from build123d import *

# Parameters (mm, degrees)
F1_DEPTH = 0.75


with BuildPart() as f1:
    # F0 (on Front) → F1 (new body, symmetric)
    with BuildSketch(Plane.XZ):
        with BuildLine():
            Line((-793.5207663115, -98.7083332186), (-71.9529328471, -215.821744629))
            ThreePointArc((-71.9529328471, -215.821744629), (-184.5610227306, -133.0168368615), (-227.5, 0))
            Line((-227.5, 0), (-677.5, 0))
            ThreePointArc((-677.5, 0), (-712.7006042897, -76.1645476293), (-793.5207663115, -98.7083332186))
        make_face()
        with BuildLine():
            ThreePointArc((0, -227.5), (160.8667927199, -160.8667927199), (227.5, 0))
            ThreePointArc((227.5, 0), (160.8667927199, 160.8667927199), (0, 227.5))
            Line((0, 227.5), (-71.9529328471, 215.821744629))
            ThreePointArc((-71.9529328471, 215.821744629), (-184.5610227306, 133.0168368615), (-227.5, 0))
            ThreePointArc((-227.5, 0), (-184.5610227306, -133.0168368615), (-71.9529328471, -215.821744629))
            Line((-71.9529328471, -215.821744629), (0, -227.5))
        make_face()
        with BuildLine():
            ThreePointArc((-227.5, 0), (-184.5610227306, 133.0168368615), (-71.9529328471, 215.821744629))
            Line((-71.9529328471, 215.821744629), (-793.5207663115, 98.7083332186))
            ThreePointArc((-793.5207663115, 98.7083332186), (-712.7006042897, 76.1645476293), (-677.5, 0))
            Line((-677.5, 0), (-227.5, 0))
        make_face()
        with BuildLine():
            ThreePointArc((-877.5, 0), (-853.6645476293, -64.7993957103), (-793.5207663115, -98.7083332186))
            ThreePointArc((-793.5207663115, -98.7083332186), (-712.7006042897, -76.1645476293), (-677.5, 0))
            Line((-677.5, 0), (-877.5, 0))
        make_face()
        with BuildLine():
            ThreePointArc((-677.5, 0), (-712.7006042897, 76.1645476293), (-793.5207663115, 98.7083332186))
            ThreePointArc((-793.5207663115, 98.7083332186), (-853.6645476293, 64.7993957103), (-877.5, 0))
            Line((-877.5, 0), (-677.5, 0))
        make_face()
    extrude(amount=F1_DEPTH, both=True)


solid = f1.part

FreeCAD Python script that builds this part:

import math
import FreeCAD as App
import Part
import Sketcher

V = App.Vector

doc = App.newDocument("Part")
body = doc.addObject("PartDesign::Body", "Body")

# Sketch on XZ plane
sketch1 = body.newObject("Sketcher::SketchObject", "Sketch")
sketch1.AttachmentSupport = (doc.getObject("XZ_Plane"), [""])
sketch1.MapMode = "FlatFace"
sketch1.addGeometry([
    Part.LineSegment(V(-794, -99, 0), V(0, -228, 0)),  # 0
    Part.ArcOfCircle(Part.Circle(V(0, 0, 0), V(0, 0, 1), 228), math.radians(-90), math.radians(0)),  # 1
    Part.ArcOfCircle(Part.Circle(V(0, 0, 0), V(0, 0, 1), 228), math.radians(0), math.radians(90)),  # 2
    Part.LineSegment(V(0, 228, 0), V(-794, 99, 0)),  # 3
    Part.ArcOfCircle(Part.Circle(V(-778, 0, 0), V(0, 0, 1), 100), math.radians(99), math.radians(180)),  # 4
    Part.ArcOfCircle(Part.Circle(V(-778, 0, 0), V(0, 0, 1), 100), math.radians(180), math.radians(261)),  # 5
], False)
sketch1.addConstraint([
    Sketcher.Constraint("Coincident", 0, 2, 1, 1),
    Sketcher.Constraint("Tangent", 1, 2, 2, 1),
    Sketcher.Constraint("Coincident", 2, 2, 3, 1),
    Sketcher.Constraint("Tangent", 3, 2, 4, 1),
    Sketcher.Constraint("Tangent", 4, 2, 5, 1),
    Sketcher.Constraint("Tangent", 5, 2, 0, 1),
    Sketcher.Constraint("Coincident", 1, 3, -1, 1),
    Sketcher.Constraint("Equal", 1, 2),
    Sketcher.Constraint("Equal", 4, 5),
    Sketcher.Constraint("PointOnObject", 4, 3, -1),
    Sketcher.Constraint("PointOnObject", 0, 2, -2),
    Sketcher.Constraint("PointOnObject", 1, 2, -1),
    Sketcher.Constraint("PointOnObject", 2, 2, -2),
    Sketcher.Constraint("PointOnObject", 4, 2, -1),
    Sketcher.Constraint("Radius", 4, 100.0),
    Sketcher.Constraint("Radius", 1, 227.5),
    Sketcher.Constraint("DistanceX", 4, 3, 1, 2, 1005.0),
])
pad1 = body.newObject("PartDesign::Pad", "Pad")
pad1.Profile = sketch1
pad1.Length = 1.5
pad1.Midplane = True

doc.recompute()
